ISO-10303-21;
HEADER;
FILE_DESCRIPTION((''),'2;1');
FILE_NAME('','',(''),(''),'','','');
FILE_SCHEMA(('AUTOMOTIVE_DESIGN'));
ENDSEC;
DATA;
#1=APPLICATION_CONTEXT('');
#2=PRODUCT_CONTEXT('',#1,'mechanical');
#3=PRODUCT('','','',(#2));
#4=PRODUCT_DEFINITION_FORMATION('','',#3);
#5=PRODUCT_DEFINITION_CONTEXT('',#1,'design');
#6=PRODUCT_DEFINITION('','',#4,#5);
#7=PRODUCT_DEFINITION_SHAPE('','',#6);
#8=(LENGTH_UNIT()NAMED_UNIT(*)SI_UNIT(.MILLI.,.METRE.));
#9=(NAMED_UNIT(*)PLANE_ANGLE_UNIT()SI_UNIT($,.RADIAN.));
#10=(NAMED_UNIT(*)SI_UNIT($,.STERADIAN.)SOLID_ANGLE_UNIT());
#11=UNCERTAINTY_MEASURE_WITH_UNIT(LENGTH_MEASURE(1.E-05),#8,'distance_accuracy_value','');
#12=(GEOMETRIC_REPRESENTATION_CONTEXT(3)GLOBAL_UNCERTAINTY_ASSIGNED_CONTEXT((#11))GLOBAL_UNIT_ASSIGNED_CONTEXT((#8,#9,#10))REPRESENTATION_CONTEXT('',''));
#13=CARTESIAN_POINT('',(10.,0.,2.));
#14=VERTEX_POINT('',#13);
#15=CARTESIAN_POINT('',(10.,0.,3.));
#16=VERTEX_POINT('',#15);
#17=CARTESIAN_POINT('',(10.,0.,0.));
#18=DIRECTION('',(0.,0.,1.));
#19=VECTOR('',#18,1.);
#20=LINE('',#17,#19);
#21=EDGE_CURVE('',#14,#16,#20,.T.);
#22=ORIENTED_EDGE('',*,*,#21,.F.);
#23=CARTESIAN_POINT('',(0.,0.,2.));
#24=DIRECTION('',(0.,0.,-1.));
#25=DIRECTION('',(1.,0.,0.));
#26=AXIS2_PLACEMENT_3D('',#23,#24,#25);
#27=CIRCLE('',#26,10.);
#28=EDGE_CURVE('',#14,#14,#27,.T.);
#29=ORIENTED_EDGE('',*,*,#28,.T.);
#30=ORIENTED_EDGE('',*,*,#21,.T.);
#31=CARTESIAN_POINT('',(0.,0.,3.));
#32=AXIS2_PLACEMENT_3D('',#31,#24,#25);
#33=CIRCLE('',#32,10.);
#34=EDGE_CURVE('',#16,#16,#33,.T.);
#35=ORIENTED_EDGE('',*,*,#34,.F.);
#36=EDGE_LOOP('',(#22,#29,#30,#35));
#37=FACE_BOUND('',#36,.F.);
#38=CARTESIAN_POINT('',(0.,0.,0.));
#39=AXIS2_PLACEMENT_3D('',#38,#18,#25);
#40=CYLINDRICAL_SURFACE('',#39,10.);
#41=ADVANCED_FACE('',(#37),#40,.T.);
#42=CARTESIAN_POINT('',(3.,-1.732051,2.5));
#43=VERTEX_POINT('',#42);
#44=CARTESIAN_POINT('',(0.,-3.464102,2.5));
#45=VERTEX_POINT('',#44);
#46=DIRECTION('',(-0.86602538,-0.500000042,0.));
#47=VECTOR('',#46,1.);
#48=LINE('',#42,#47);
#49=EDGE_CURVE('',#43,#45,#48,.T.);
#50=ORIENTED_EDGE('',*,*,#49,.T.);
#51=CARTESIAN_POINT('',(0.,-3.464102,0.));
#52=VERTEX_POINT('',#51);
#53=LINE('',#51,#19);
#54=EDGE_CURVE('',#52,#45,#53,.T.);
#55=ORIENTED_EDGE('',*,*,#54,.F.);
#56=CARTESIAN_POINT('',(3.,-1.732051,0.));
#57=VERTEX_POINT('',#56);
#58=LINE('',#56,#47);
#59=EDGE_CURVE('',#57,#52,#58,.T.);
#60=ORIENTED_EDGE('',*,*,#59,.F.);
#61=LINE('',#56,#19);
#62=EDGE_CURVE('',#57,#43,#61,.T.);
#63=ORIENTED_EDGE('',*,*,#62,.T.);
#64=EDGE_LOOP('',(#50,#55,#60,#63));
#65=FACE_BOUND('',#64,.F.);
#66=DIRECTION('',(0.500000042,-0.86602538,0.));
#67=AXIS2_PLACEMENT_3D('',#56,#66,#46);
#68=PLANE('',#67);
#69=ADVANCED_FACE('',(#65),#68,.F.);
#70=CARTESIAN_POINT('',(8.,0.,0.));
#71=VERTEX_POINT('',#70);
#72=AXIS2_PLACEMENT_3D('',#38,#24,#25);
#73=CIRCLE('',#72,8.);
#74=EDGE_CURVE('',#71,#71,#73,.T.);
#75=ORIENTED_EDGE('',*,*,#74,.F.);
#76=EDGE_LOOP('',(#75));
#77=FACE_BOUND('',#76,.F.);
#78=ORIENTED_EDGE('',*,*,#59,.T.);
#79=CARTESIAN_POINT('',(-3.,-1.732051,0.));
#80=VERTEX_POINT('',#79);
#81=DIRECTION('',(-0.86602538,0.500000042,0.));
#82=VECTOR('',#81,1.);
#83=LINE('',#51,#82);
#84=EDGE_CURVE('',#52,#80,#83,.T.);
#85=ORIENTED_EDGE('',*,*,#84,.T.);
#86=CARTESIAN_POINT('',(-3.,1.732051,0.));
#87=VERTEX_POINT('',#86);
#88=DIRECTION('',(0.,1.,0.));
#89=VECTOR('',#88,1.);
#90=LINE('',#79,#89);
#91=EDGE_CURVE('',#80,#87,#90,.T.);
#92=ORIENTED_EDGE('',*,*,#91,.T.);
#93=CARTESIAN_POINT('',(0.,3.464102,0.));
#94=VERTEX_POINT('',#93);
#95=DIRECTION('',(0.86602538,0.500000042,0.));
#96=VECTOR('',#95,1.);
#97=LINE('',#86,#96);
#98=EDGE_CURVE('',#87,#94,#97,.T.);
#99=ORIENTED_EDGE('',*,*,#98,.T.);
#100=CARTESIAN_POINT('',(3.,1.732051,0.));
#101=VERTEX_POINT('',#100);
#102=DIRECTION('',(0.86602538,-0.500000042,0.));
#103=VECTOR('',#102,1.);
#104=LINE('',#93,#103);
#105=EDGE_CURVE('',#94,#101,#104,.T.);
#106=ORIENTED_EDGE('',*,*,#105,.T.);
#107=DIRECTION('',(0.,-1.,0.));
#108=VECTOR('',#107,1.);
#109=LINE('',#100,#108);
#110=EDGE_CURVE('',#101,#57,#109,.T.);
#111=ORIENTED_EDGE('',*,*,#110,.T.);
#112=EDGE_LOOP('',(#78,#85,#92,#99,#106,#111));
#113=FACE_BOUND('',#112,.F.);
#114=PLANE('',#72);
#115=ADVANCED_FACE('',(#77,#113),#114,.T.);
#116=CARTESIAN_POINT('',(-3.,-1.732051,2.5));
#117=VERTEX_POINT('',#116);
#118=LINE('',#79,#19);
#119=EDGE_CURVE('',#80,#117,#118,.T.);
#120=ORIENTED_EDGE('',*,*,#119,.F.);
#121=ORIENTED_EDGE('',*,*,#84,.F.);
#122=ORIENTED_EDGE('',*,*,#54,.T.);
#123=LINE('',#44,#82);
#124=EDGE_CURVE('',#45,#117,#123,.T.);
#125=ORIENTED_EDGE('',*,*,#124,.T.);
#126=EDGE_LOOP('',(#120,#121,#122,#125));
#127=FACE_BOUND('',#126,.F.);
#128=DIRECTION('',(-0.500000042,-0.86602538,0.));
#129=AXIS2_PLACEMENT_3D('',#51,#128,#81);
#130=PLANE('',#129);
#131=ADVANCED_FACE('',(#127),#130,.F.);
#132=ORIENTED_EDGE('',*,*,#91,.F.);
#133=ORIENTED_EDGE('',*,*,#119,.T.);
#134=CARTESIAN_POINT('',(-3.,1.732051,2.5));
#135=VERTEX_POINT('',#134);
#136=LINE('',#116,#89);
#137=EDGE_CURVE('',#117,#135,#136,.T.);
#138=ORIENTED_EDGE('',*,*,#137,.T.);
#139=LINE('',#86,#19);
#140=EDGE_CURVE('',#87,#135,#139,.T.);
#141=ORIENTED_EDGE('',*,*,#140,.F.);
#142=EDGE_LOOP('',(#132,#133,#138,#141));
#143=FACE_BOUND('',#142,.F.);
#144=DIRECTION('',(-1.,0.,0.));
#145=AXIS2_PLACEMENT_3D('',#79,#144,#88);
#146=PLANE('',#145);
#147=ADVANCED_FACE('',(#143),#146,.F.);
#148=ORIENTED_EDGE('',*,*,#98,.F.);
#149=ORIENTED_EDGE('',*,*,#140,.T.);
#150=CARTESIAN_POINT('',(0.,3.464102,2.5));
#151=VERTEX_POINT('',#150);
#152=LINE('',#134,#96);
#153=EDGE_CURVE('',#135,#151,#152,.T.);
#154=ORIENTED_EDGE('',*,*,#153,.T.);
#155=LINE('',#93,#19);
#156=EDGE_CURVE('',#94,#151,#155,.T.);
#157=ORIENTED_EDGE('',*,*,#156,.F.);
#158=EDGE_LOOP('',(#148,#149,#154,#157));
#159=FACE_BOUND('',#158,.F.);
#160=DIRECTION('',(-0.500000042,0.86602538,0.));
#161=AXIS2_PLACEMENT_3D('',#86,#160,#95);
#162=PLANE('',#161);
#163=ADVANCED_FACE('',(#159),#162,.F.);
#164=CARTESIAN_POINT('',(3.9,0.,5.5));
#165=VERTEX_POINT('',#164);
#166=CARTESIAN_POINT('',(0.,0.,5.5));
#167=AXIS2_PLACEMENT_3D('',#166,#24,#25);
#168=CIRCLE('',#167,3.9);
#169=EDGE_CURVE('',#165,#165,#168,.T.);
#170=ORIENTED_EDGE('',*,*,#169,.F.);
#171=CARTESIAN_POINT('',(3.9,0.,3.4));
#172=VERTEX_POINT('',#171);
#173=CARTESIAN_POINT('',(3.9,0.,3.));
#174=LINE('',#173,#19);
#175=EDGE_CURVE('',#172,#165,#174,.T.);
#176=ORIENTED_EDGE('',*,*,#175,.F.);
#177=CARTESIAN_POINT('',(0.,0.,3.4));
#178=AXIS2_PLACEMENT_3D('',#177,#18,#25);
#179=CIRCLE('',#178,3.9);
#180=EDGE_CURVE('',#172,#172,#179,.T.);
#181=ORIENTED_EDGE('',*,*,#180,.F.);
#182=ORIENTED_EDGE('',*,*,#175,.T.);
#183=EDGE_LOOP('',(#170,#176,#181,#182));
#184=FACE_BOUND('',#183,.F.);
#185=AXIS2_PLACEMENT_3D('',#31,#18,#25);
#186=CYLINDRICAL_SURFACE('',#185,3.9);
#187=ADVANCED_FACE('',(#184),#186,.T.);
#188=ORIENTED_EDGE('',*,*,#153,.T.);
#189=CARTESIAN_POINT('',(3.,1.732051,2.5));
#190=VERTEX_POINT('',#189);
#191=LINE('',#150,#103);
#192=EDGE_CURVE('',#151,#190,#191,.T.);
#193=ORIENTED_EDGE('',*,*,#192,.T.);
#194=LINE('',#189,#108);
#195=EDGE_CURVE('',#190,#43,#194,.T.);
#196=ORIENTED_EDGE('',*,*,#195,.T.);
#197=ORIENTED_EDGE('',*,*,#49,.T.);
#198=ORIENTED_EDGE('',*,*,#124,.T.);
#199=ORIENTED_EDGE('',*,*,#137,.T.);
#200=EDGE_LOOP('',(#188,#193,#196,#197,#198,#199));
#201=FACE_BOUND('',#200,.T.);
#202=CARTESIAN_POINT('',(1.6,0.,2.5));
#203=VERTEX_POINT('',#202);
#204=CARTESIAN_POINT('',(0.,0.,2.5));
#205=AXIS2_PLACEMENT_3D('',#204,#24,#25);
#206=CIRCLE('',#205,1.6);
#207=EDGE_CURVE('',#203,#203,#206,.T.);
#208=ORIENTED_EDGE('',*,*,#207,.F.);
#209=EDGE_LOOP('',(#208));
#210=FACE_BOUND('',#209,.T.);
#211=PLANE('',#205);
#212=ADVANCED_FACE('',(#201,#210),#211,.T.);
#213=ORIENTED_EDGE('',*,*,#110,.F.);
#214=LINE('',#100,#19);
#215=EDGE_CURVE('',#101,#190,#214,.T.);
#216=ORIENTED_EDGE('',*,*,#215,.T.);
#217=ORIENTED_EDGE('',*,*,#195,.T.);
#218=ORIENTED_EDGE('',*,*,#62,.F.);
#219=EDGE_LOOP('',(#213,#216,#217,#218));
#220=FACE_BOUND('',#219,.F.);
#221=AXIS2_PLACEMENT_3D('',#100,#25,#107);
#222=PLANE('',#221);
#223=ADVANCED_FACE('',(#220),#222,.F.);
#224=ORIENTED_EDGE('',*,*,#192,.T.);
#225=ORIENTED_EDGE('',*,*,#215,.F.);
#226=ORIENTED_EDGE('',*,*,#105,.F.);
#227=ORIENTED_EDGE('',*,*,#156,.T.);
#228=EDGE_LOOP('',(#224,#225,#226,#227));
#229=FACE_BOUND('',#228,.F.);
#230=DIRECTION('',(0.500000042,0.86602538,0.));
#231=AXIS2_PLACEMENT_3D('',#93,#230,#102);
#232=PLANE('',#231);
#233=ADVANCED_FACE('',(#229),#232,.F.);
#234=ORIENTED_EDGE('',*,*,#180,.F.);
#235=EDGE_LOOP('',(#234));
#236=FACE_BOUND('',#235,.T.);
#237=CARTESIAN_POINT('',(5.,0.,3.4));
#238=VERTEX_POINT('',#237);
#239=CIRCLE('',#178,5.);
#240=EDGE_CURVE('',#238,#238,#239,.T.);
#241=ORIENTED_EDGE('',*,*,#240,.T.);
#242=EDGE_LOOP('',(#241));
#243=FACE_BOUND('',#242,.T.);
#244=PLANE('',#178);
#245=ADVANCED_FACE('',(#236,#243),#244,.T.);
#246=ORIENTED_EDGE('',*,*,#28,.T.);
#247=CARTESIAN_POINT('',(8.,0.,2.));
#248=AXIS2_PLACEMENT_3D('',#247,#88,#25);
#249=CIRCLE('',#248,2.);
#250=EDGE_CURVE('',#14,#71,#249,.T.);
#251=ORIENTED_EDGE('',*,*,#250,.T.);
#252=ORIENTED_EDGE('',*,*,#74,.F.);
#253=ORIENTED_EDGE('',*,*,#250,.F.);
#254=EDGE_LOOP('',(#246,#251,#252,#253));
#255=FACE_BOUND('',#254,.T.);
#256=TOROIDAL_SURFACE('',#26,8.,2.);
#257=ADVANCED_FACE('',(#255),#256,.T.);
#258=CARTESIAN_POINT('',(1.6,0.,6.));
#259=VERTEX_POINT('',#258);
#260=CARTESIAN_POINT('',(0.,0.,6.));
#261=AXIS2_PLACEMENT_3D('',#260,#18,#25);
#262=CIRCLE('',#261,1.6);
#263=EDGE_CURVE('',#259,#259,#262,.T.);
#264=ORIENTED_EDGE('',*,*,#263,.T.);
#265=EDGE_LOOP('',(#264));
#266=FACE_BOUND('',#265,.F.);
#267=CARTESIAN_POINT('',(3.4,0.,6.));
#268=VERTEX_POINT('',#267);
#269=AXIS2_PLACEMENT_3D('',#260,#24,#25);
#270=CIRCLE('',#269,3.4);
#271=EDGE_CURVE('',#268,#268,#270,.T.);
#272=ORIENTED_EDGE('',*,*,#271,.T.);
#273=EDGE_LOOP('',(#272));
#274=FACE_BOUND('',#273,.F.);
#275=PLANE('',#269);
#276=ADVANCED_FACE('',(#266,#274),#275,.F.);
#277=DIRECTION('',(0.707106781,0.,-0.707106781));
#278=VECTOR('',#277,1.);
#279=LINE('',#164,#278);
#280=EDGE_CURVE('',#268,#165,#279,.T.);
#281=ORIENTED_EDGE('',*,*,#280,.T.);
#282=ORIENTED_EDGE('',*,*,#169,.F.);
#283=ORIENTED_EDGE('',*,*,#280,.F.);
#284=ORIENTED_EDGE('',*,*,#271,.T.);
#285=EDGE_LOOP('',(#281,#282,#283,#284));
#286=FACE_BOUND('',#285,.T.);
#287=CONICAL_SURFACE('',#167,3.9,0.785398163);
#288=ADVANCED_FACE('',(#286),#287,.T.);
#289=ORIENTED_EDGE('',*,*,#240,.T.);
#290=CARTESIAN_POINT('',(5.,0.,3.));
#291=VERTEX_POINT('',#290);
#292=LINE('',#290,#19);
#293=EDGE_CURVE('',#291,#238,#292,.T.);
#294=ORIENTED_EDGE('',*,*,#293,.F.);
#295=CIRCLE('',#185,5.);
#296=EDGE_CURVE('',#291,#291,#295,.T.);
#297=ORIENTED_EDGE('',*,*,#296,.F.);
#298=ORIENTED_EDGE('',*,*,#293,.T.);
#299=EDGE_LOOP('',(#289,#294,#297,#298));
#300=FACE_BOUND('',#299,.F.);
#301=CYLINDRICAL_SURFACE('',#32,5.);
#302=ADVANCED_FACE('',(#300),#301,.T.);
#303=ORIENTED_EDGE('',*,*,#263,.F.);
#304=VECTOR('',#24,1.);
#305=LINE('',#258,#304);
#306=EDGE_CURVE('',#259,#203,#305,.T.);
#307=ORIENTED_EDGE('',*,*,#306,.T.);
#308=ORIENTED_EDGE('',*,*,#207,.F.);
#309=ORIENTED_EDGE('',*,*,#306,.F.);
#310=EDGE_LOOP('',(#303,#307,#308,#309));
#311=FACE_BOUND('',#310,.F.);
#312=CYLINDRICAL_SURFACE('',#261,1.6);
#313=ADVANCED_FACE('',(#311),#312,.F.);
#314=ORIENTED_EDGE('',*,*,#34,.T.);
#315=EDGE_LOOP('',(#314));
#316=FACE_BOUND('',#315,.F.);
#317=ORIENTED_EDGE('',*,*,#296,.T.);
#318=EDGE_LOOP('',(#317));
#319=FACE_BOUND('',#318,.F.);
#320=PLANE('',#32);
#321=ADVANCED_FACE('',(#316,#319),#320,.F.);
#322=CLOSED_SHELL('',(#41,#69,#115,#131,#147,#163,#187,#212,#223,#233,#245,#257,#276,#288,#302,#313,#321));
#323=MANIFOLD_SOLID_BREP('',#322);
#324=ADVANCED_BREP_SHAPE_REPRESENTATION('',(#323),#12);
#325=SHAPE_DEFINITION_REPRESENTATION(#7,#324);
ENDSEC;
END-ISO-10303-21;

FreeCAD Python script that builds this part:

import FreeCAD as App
import Part
import Sketcher
Q = App.Units.Quantity


def edges_at(feature, points):
    """Names of the edges that pass closest to the given points."""
    edges = feature.Shape.Edges
    near = lambda p: min(range(len(edges)), key=lambda i: edges[i].distToShape(Part.Vertex(*p))[0])
    return sorted({f"Edge{near(p) + 1}" for p in points})


def add_polygon(sketch, points):
    """Adds a closed chain of lines whose ends are joined by coincident constraints."""
    first, n = sketch.GeometryCount, len(points)
    for a, b in zip(points, points[1:] + points[:1]):
        sketch.addGeometry(Part.LineSegment(App.Vector(*a, 0), App.Vector(*b, 0)), False)
    for i in range(n):
        sketch.addConstraint(Sketcher.Constraint("Coincident", first + i, 2, first + (i + 1) % n, 1))

doc = App.newDocument("Part")
body = doc.addObject("PartDesign::Body", "Body")

# Sketch on XZ plane
sketch1 = body.newObject("Sketcher::SketchObject", "Sketch")
sketch1.AttachmentSupport = (doc.getObject("XZ_Plane"), [""])
sketch1.MapMode = "FlatFace"
add_polygon(sketch1, [(3.9, 6), (0, 6), (0, 0), (10, 0), (10, 3), (3.9, 3)])  # lines 0-5
sketch1.addConstraint([
    Sketcher.Constraint("Horizontal", 0),
    Sketcher.Constraint("Vertical", 1),
    Sketcher.Constraint("Horizontal", 2),
    Sketcher.Constraint("Vertical", 3),
    Sketcher.Constraint("Horizontal", 4),
    Sketcher.Constraint("Vertical", 5),
    Sketcher.Constraint("Coincident", 1, 2, -1, 1),
    Sketcher.Constraint("Equal", 3, 5),
    Sketcher.Constraint("DistanceX", 2, 1, 2, 2, Q("10 mm")),
    Sketcher.Constraint("DistanceY", 1, 2, 1, 1, Q("6 mm")),
    Sketcher.Constraint("DistanceX", 0, 2, 0, 1, Q("3.9 mm")),
])
revolution = body.newObject("PartDesign::Revolution", "Revolution")
revolution.Profile = sketch1
revolution.ReferenceAxis = (sketch1, ["V_Axis"])
revolution.Angle = 360
doc.recompute()

chamfer = body.newObject("PartDesign::Chamfer", "Chamfer")
chamfer.Base = (revolution, edges_at(revolution, [(-3.9, 0, 6)]))
chamfer.Size = 0.5

# Sketch on XY plane
sketch2 = body.newObject("Sketcher::SketchObject", "Sketch001")
sketch2.AttachmentSupport = (doc.getObject("XY_Plane"), [""])
sketch2.MapMode = "FlatFace"
sketch2.AttachmentOffset = App.Placement(App.Vector(0, 0, 3), App.Rotation())
sketch2.addGeometry([
    Part.Circle(App.Vector(0, 0, 0), App.Vector(0, 0, 1), 5),
    Part.Circle(App.Vector(0, 0, 0), App.Vector(0, 0, 1), 3.9),
], False)
sketch2.addConstraint([
    Sketcher.Constraint("Coincident", 0, 3, -1, 1),
    Sketcher.Constraint("Coincident", 1, 3, -1, 1),
    Sketcher.Constraint("Diameter", 0, Q("10 mm")),
    Sketcher.Constraint("Diameter", 1, Q("7.8 mm")),
])
pad1 = body.newObject("PartDesign::Pad", "Pad")
pad1.Profile = sketch2
pad1.Length = 0.4
doc.recompute()

fillet = body.newObject("PartDesign::Fillet", "Fillet")
fillet.Base = (pad1, edges_at(pad1, [(-10, 0, 0)]))
fillet.Radius = 2

# Sketch on XY plane
sketch3 = body.newObject("Sketcher::SketchObject", "Sketch002")
sketch3.AttachmentSupport = (doc.getObject("XY_Plane"), [""])
sketch3.MapMode = "FlatFace"
sketch3.AttachmentOffset = App.Placement(App.Vector(0, 0, 6), App.Rotation())
sketch3.addGeometry(Part.Circle(App.Vector(0, 0, 0), App.Vector(0, 0, 1), 1.6), False)
sketch3.addConstraint([
    Sketcher.Constraint("Coincident", 0, 3, -1, 1),
    Sketcher.Constraint("Diameter", 0, Q("3.2 mm")),
])
pocket1 = body.newObject("PartDesign::Pocket", "Pocket")
pocket1.Profile = sketch3
pocket1.Length = 25

# Sketch on XY plane
sketch4 = body.newObject("Sketcher::SketchObject", "Sketch003")
sketch4.AttachmentSupport = (doc.getObject("XY_Plane"), [""])
sketch4.MapMode = "FlatFace"
add_polygon(sketch4, [(3, 1.732051), (3, -1.732051), (0, -3.464102), (-3, -1.732051), (-3, 1.732051), (0, 3.464102)])  # lines 0-5
sketch4.addGeometry(Part.Circle(App.Vector(0, 0, 0), App.Vector(0, 0, 1), 1.6), False)  # 6
sketch4.addConstraint([
    Sketcher.Constraint("Vertical", 0),
    Sketcher.Constraint("Vertical", 3),
    Sketcher.Constraint("Coincident", 6, 3, -1, 1),
    Sketcher.Constraint("Symmetric", 0, 2, 3, 2, -1, 1),
    Sketcher.Constraint("Symmetric", 1, 2, 4, 2, -1, 1),
    Sketcher.Constraint("PointOnObject", 1, 2, -2),
    Sketcher.Constraint("Parallel", 2, 5),
    Sketcher.Constraint("Horizontal", 0, 2, 2, 2),
    Sketcher.Constraint("Diameter", 6, Q("3.2 mm")),
    Sketcher.Constraint("Angle", 1, Q("-149.999997 deg")),
    Sketcher.Constraint("DistanceX", -1, 1, 0, 2, Q("3 mm")),
    Sketcher.Constraint("DistanceY", 0, 2, 0, 1, Q("3.464102 mm")),
])
pocket2 = body.newObject("PartDesign::Pocket", "Pocket001")
pocket2.Profile = sketch4
pocket2.Length = 2.5
pocket2.Reversed = True

doc.recompute()
